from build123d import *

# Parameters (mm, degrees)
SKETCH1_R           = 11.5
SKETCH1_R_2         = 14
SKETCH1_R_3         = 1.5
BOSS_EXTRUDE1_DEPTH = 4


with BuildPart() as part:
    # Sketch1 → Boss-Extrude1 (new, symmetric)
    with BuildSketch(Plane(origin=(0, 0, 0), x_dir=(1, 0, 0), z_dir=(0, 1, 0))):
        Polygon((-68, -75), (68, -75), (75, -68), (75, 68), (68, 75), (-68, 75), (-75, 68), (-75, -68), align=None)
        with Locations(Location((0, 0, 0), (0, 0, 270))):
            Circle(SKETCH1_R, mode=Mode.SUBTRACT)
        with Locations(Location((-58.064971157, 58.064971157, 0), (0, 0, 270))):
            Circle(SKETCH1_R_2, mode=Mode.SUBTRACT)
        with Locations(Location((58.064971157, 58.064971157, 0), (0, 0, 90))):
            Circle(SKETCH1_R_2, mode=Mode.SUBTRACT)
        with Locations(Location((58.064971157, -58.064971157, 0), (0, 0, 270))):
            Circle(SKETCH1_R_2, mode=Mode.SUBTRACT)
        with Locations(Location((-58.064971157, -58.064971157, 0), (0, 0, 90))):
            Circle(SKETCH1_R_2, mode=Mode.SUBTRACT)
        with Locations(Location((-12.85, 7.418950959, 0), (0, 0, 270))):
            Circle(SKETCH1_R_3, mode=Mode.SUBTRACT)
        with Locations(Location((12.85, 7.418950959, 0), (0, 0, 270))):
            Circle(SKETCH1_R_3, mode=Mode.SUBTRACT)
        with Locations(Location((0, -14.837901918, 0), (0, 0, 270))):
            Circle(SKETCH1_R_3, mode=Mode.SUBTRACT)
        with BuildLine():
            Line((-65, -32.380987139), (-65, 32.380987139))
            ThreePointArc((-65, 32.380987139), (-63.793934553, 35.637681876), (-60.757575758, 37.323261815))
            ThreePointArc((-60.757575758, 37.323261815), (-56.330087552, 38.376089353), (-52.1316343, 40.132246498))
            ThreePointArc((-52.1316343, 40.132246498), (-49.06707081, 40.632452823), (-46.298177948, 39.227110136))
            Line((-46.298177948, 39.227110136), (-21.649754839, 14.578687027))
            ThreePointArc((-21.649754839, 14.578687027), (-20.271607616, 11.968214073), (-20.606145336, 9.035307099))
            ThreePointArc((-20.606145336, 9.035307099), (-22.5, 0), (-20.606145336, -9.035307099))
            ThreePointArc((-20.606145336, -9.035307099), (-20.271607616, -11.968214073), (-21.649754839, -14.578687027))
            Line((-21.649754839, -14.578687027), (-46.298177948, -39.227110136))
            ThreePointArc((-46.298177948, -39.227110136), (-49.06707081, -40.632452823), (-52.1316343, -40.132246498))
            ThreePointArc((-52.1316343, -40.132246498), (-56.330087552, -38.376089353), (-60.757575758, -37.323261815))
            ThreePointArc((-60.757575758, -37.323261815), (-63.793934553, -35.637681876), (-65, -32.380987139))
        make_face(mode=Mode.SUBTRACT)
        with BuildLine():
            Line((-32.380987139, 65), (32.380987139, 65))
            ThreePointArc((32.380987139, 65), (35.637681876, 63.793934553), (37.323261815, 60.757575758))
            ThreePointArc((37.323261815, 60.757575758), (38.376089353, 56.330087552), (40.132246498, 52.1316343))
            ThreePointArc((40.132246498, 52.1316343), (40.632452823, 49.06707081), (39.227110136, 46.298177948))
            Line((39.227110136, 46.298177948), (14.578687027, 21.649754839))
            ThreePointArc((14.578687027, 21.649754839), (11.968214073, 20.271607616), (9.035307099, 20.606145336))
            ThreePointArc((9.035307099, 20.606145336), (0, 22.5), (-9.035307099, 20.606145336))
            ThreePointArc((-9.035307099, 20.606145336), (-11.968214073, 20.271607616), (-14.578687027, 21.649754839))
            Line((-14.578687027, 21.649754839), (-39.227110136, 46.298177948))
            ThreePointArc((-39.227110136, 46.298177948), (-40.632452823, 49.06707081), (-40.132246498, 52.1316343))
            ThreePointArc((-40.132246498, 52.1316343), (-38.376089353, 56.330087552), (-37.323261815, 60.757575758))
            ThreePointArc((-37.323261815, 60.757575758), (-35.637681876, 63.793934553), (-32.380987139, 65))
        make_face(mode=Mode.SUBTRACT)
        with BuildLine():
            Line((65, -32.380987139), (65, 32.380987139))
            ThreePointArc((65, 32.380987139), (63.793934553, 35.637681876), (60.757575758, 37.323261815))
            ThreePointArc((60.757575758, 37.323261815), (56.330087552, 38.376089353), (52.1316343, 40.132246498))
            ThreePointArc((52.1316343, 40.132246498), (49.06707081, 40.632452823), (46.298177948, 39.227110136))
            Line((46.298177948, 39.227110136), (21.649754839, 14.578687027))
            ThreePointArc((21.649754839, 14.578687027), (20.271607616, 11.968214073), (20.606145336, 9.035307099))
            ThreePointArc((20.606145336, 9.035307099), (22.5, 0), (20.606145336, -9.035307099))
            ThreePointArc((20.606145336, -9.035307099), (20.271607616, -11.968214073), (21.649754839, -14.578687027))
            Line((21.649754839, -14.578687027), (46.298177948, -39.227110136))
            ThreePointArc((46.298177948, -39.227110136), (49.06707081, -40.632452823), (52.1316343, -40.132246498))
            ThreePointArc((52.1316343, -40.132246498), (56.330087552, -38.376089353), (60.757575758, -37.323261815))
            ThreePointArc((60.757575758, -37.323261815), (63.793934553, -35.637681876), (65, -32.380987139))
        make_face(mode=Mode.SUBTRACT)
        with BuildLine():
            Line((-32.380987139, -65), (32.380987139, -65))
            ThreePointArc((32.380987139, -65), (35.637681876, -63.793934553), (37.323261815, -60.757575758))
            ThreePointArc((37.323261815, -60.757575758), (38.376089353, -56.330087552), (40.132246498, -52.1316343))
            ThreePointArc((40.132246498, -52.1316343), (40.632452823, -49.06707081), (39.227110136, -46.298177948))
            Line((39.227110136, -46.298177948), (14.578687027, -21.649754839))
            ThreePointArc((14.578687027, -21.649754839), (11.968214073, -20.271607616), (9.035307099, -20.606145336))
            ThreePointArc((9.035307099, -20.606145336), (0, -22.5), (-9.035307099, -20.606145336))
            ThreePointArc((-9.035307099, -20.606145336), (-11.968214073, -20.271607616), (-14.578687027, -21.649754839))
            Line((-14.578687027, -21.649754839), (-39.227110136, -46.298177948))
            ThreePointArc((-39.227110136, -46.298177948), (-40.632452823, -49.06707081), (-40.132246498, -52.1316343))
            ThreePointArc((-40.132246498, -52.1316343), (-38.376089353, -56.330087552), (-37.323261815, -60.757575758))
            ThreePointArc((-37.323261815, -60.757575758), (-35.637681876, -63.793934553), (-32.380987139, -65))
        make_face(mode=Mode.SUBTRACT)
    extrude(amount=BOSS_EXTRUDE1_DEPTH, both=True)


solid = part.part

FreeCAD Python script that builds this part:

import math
import FreeCAD as App
import Part
import Sketcher
from FreeCAD import Vector
Q = App.Units.Quantity


def add_polygon(sketch, points):
    """Adds a closed chain of lines whose ends are joined by coincident constraints."""
    first, n = sketch.GeometryCount, len(points)
    for a, b in zip(points, points[1:] + points[:1]):
        sketch.addGeometry(Part.LineSegment(App.Vector(*a, 0), App.Vector(*b, 0)), False)
    for i in range(n):
        sketch.addConstraint(Sketcher.Constraint("Coincident", first + i, 2, first + (i + 1) % n, 1))

doc = App.newDocument("Part")
body = doc.addObject("PartDesign::Body", "Body")

# Sketch on XZ plane
sketch1 = body.newObject("Sketcher::SketchObject", "Sketch")
sketch1.AttachmentSupport = (doc.getObject("XZ_Plane"), [""])
sketch1.MapMode = "FlatFace"
add_polygon(sketch1, [(-68, 75), (68, 75), (75, 68), (75, -68), (68, -75), (-68, -75), (-75, -68), (-75, 68)])  # lines 0-7
sketch1.addGeometry(Part.Circle(Vector(-58.1, 58.1, 0), Vector(0, 0, 1), 14), False)  # 8
sketch1.addGeometry(Part.LineSegment(Vector(32.4, 65, 0), Vector(-32.4, 65, 0)), False)  # 9
sketch1.addGeometry(Part.ArcOfCircle(Part.Circle(Vector(-32.4, 60, 0), Vector(0, 0, 1), 5), math.radians(90), math.radians(171)), False)  # 10
sketch1.addGeometry(Part.ArcOfCircle(Part.Circle(Vector(-65, 65, 0), Vector(0, 0, 1), 28), math.radians(-27.36), math.radians(-8.71)), False)  # 11
sketch1.addGeometry(Part.ArcOfCircle(Part.Circle(Vector(-35.7, 49.8, 0), Vector(0, 0, 1), 5), math.radians(153), math.radians(225)), False)  # 12
sketch1.addGeometry(Part.LineSegment(Vector(-39.2, 46.3, 0), Vector(-14.6, 21.6, 0)), False)  # 13
sketch1.addGeometry(Part.ArcOfCircle(Part.Circle(Vector(-11, 25.2, 0), Vector(0, 0, 1), 5), math.radians(-135), math.radians(-66)), False)  # 14
sketch1.addGeometry(Part.ArcOfCircle(Part.Circle(Vector(0, 0, 0), Vector(0, 0, 1), 22.5), math.radians(66), math.radians(114)), False)  # 15
sketch1.addGeometry(Part.ArcOfCircle(Part.Circle(Vector(11, 25.2, 0), Vector(0, 0, 1), 5), math.radians(-114), math.radians(-45)), False)  # 16
sketch1.addGeometry(Part.LineSegment(Vector(14.6, 21.6, 0), Vector(39.2, 46.3, 0)), False)  # 17
sketch1.addGeometry(Part.ArcOfCircle(Part.Circle(Vector(35.7, 49.8, 0), Vector(0, 0, 1), 5), math.radians(-45), math.radians(27)), False)  # 18
sketch1.addGeometry(Part.ArcOfCircle(Part.Circle(Vector(65, 65, 0), Vector(0, 0, 1), 28), math.radians(-171.29), math.radians(-152.64)), False)  # 19
sketch1.addGeometry(Part.ArcOfCircle(Part.Circle(Vector(32.4, 60, 0), Vector(0, 0, 1), 5), math.radians(9), math.radians(90)), False)  # 20
sketch1.addGeometry(Part.Circle(Vector(58.1, 58.1, 0), Vector(0, 0, 1), 14), False)  # 21
sketch1.addGeometry(Part.Circle(Vector(0, 14.8, 0), Vector(0, 0, 1), 1.5), False)  # 22
sketch1.addGeometry(Part.ArcOfCircle(Part.Circle(Vector(-60, 32.4, 0), Vector(0, 0, 1), 5), math.radians(99), math.radians(180)), False)  # 23
sketch1.addGeometry(Part.LineSegment(Vector(-65, 32.4, 0), Vector(-65, -32.4, 0)), False)  # 24
sketch1.addGeometry(Part.ArcOfCircle(Part.Circle(Vector(-60, -32.4, 0), Vector(0, 0, 1), 5), math.radians(180), math.radians(261)), False)  # 25
sketch1.addGeometry(Part.ArcOfCircle(Part.Circle(Vector(-65, -65, 0), Vector(0, 0, 1), 28), math.radians(62.64), math.radians(81.29)), False)  # 26
sketch1.addGeometry(Part.ArcOfCircle(Part.Circle(Vector(-49.8, -35.7, 0), Vector(0, 0, 1), 5), math.radians(-117), math.radians(-45)), False)  # 27
sketch1.addGeometry(Part.LineSegment(Vector(-46.3, -39.2, 0), Vector(-21.6, -14.6, 0)), False)  # 28
sketch1.addGeometry(Part.ArcOfCircle(Part.Circle(Vector(-25.2, -11, 0), Vector(0, 0, 1), 5), math.radians(-45), math.radians(24)), False)  # 29
sketch1.addGeometry(Part.ArcOfCircle(Part.Circle(Vector(0, 0, 0), Vector(0, 0, 1), 22.5), math.radians(156), math.radians(204)), False)  # 30
sketch1.addGeometry(Part.ArcOfCircle(Part.Circle(Vector(-25.2, 11, 0), Vector(0, 0, 1), 5), math.radians(-24), math.radians(45)), False)  # 31
sketch1.addGeometry(Part.LineSegment(Vector(-21.6, 14.6, 0), Vector(-46.3, 39.2, 0)), False)  # 32
sketch1.addGeometry(Part.ArcOfCircle(Part.Circle(Vector(-49.8, 35.7, 0), Vector(0, 0, 1), 5), math.radians(45), math.radians(117)), False)  # 33
sketch1.addGeometry(Part.ArcOfCircle(Part.Circle(Vector(-65, 65, 0), Vector(0, 0, 1), 28), math.radians(-81.29), math.radians(-62.64)), False)  # 34
sketch1.addGeometry(Part.Circle(Vector(-12.8, -7.4, 0), Vector(0, 0, 1), 1.5), False)  # 35
sketch1.addGeometry(Part.Circle(Vector(-58.1, -58.1, 0), Vector(0, 0, 1), 14), False)  # 36
sketch1.addGeometry(Part.Circle(Vector(0, 0, 0), Vector(0, 0, 1), 11.5), False)  # 37
sketch1.addGeometry(Part.Circle(Vector(12.8, -7.4, 0), Vector(0, 0, 1), 1.5), False)  # 38
sketch1.addGeometry(Part.LineSegment(Vector(65, -32.4, 0), Vector(65, 32.4, 0)), False)  # 39
sketch1.addGeometry(Part.ArcOfCircle(Part.Circle(Vector(60, 32.4, 0), Vector(0, 0, 1), 5), math.radians(0), math.radians(81)), False)  # 40
sketch1.addGeometry(Part.ArcOfCircle(Part.Circle(Vector(65, 65, 0), Vector(0, 0, 1), 28), math.radians(-117.36), math.radians(-98.71)), False)  # 41
sketch1.addGeometry(Part.ArcOfCircle(Part.Circle(Vector(49.8, 35.7, 0), Vector(0, 0, 1), 5), math.radians(63), math.radians(135)), False)  # 42
sketch1.addGeometry(Part.LineSegment(Vector(46.3, 39.2, 0), Vector(21.6, 14.6, 0)), False)  # 43
sketch1.addGeometry(Part.ArcOfCircle(Part.Circle(Vector(25.2, 11, 0), Vector(0, 0, 1), 5), math.radians(135), math.radians(204)), False)  # 44
sketch1.addGeometry(Part.ArcOfCircle(Part.Circle(Vector(0, 0, 0), Vector(0, 0, 1), 22.5), math.radians(-24), math.radians(24)), False)  # 45
sketch1.addGeometry(Part.ArcOfCircle(Part.Circle(Vector(25.2, -11, 0), Vector(0, 0, 1), 5), math.radians(156), math.radians(225)), False)  # 46
sketch1.addGeometry(Part.LineSegment(Vector(21.6, -14.6, 0), Vector(46.3, -39.2, 0)), False)  # 47
sketch1.addGeometry(Part.ArcOfCircle(Part.Circle(Vector(49.8, -35.7, 0), Vector(0, 0, 1), 5), math.radians(-135), math.radians(-63)), False)  # 48
sketch1.addGeometry(Part.ArcOfCircle(Part.Circle(Vector(65, -65, 0), Vector(0, 0, 1), 28), math.radians(98.71), math.radians(117.36)), False)  # 49
sketch1.addGeometry(Part.ArcOfCircle(Part.Circle(Vector(60, -32.4, 0), Vector(0, 0, 1), 5), math.radians(-81), math.radians(0)), False)  # 50
sketch1.addGeometry(Part.ArcOfCircle(Part.Circle(Vector(-32.4, -60, 0), Vector(0, 0, 1), 5), math.radians(-171), math.radians(-90)), False)  # 51
sketch1.addGeometry(Part.LineSegment(Vector(-32.4, -65, 0), Vector(32.4, -65, 0)), False)  # 52
sketch1.addGeometry(Part.ArcOfCircle(Part.Circle(Vector(32.4, -60, 0), Vector(0, 0, 1), 5), math.radians(-90), math.radians(-9)), False)  # 53
sketch1.addGeometry(Part.ArcOfCircle(Part.Circle(Vector(65, -65, 0), Vector(0, 0, 1), 28), math.radians(152.64), math.radians(171.29)), False)  # 54
sketch1.addGeometry(Part.ArcOfCircle(Part.Circle(Vector(35.7, -49.8, 0), Vector(0, 0, 1), 5), math.radians(-27), math.radians(45)), False)  # 55
sketch1.addGeometry(Part.LineSegment(Vector(39.2, -46.3, 0), Vector(14.6, -21.6, 0)), False)  # 56
sketch1.addGeometry(Part.ArcOfCircle(Part.Circle(Vector(11, -25.2, 0), Vector(0, 0, 1), 5), math.radians(45), math.radians(114)), False)  # 57
sketch1.addGeometry(Part.ArcOfCircle(Part.Circle(Vector(0, 0, 0), Vector(0, 0, 1), 22.5), math.radians(-114), math.radians(-66)), False)  # 58
sketch1.addGeometry(Part.ArcOfCircle(Part.Circle(Vector(-11, -25.2, 0), Vector(0, 0, 1), 5), math.radians(66), math.radians(135)), False)  # 59
sketch1.addGeometry(Part.LineSegment(Vector(-14.6, -21.6, 0), Vector(-39.2, -46.3, 0)), False)  # 60
sketch1.addGeometry(Part.ArcOfCircle(Part.Circle(Vector(-35.7, -49.8, 0), Vector(0, 0, 1), 5), math.radians(135), math.radians(207)), False)  # 61
sketch1.addGeometry(Part.ArcOfCircle(Part.Circle(Vector(-65, -65, 0), Vector(0, 0, 1), 28), math.radians(8.71), math.radians(27.36)), False)  # 62
sketch1.addGeometry(Part.Circle(Vector(58.1, -58.1, 0), Vector(0, 0, 1), 14), False)  # 63
sketch1.addConstraint([
    Sketcher.Constraint("Tangent", 9, 2, 10, 1),
    Sketcher.Constraint("Tangent", 10, 2, 11, 2),
    Sketcher.Constraint("Tangent", 11, 1, 12, 1),
    Sketcher.Constraint("Tangent", 12, 2, 13, 1),
    Sketcher.Constraint("Tangent", 13, 2, 14, 1),
    Sketcher.Constraint("Tangent", 14, 2, 15, 2),
    Sketcher.Constraint("Tangent", 15, 1, 16, 1),
    Sketcher.Constraint("Tangent", 16, 2, 17, 1),
    Sketcher.Constraint("Tangent", 17, 2, 18, 1),
    Sketcher.Constraint("Tangent", 18, 2, 19, 2),
    Sketcher.Constraint("Tangent", 19, 1, 20, 1),
    Sketcher.Constraint("Tangent", 20, 2, 9, 1),
    Sketcher.Constraint("Tangent", 23, 2, 24, 1),
    Sketcher.Constraint("Tangent", 24, 2, 25, 1),
    Sketcher.Constraint("Tangent", 25, 2, 26, 2),
    Sketcher.Constraint("Tangent", 26, 1, 27, 1),
    Sketcher.Constraint("Tangent", 27, 2, 28, 1),
    Sketcher.Constraint("Tangent", 28, 2, 29, 1),
    Sketcher.Constraint("Tangent", 29, 2, 30, 2),
    Sketcher.Constraint("Tangent", 30, 1, 31, 1),
    Sketcher.Constraint("Tangent", 31, 2, 32, 1),
    Sketcher.Constraint("Tangent", 32, 2, 33, 1),
    Sketcher.Constraint("Tangent", 33, 2, 34, 2),
    Sketcher.Constraint("Tangent", 34, 1, 23, 1),
    Sketcher.Constraint("Tangent", 39, 2, 40, 1),
    Sketcher.Constraint("Tangent", 40, 2, 41, 2),
    Sketcher.Constraint("Tangent", 41, 1, 42, 1),
    Sketcher.Constraint("Tangent", 42, 2, 43, 1),
    Sketcher.Constraint("Tangent", 43, 2, 44, 1),
    Sketcher.Constraint("Tangent", 44, 2, 45, 2),
    Sketcher.Constraint("Tangent", 45, 1, 46, 1),
    Sketcher.Constraint("Tangent", 46, 2, 47, 1),
    Sketcher.Constraint("Tangent", 47, 2, 48, 1),
    Sketcher.Constraint("Tangent", 48, 2, 49, 2),
    Sketcher.Constraint("Tangent", 49, 1, 50, 1),
    Sketcher.Constraint("Tangent", 50, 2, 39, 1),
    Sketcher.Constraint("Tangent", 51, 2, 52, 1),
    Sketcher.Constraint("Tangent", 52, 2, 53, 1),
    Sketcher.Constraint("Tangent", 53, 2, 54, 2),
    Sketcher.Constraint("Tangent", 54, 1, 55, 1),
    Sketcher.Constraint("Tangent", 55, 2, 56, 1),
    Sketcher.Constraint("Tangent", 56, 2, 57, 1),
    Sketcher.Constraint("Tangent", 57, 2, 58, 2),
    Sketcher.Constraint("Tangent", 58, 1, 59, 1),
    Sketcher.Constraint("Tangent", 59, 2, 60, 1),
    Sketcher.Constraint("Tangent", 60, 2, 61, 1),
    Sketcher.Constraint("Tangent", 61, 2, 62, 2),
    Sketcher.Constraint("Tangent", 62, 1, 51, 1),
    Sketcher.Constraint("Horizontal", 0),
    Sketcher.Constraint("Vertical", 2),
    Sketcher.Constraint("Horizontal", 4),
    Sketcher.Constraint("Vertical", 6),
    Sketcher.Constraint("Horizontal", 9),
    Sketcher.Constraint("Vertical", 24),
    Sketcher.Constraint("Vertical", 39),
    Sketcher.Constraint("Horizontal", 52),
    Sketcher.Constraint("Coincident", 15, 3, -1, 1),
    Sketcher.Constraint("Coincident", 30, 3, -1, 1),
    Sketcher.Constraint("Coincident", 37, 3, -1, 1),
    Sketcher.Constraint("Coincident", 45, 3, -1, 1),
    Sketcher.Constraint("Coincident", 58, 3, -1, 1),
    Sketcher.Constraint("Coincident", 34, 3, 11, 3),
    Sketcher.Constraint("Coincident", 41, 3, 19, 3),
    Sketcher.Constraint("Coincident", 54, 3, 49, 3),
    Sketcher.Constraint("Coincident", 62, 3, 26, 3),
    Sketcher.Constraint("Equal", 10, 12),
    Sketcher.Constraint("Equal", 12, 14),
    Sketcher.Constraint("Equal", 14, 16),
    Sketcher.Constraint("Equal", 16, 18),
    Sketcher.Constraint("Equal", 11, 19),
    Sketcher.Constraint("Equal", 18, 20),
    Sketcher.Constraint("Equal", 8, 21),
    Sketcher.Constraint("Equal", 20, 23),
    Sketcher.Constraint("Equal", 23, 25),
    Sketcher.Constraint("Equal", 19, 26),
    Sketcher.Constraint("Equal", 25, 27),
    Sketcher.Constraint("Equal", 27, 29),
    Sketcher.Constraint("Equal", 15, 30),
    Sketcher.Constraint("Equal", 29, 31),
    Sketcher.Constraint("Equal", 31, 33),
    Sketcher.Constraint("Equal", 26, 34),
    Sketcher.Constraint("Equal", 22, 35),
    Sketcher.Constraint("Equal", 21, 36),
    Sketcher.Constraint("Equal", 35, 38),
    Sketcher.Constraint("Equal", 33, 40),
    Sketcher.Constraint("Equal", 34, 41),
    Sketcher.Constraint("Equal", 40, 42),
    Sketcher.Constraint("Equal", 42, 44),
    Sketcher.Constraint("Equal", 30, 45),
    Sketcher.Constraint("Equal", 44, 46),
    Sketcher.Constraint("Equal", 46, 48),
    Sketcher.Constraint("Equal", 41, 49),
    Sketcher.Constraint("Equal", 48, 50),
    Sketcher.Constraint("Equal", 50, 51),
    Sketcher.Constraint("Equal", 51, 53),
    Sketcher.Constraint("Equal", 49, 54),
    Sketcher.Constraint("Equal", 53, 55),
    Sketcher.Constraint("Equal", 55, 57),
    Sketcher.Constraint("Equal", 45, 58),
    Sketcher.Constraint("Equal", 57, 59),
    Sketcher.Constraint("Equal", 59, 61),
    Sketcher.Constraint("Equal", 54, 62),
    Sketcher.Constraint("Equal", 36, 63),
    Sketcher.Constraint("Symmetric", 19, 3, 26, 3, -1, 1),
    Sketcher.Constraint("Symmetric", 21, 3, 36, 3, -1, 1),
    Sketcher.Constraint("Symmetric", 33, 3, 48, 3, -1, 1),
    Sketcher.Constraint("Symmetric", 23, 3, 50, 3, -1, 1),
    Sketcher.Constraint("Symmetric", 8, 3, 63, 3, -1, 1),
    Sketcher.Constraint("Symmetric", 0, 2, 4, 2, -1, 1),
    Sketcher.Constraint("Symmetric", 1, 2, 5, 2, -1, 1),
    Sketcher.Constraint("Symmetric", 27, 2, 42, 2, -1, 1),
    Sketcher.Constraint("Symmetric", 12, 2, 55, 2, -1, 1),
    Sketcher.Constraint("Symmetric", 16, 2, 59, 2, -1, 1),
    Sketcher.Constraint("Symmetric", 12, 3, 18, 3, -2),
    Sketcher.Constraint("Symmetric", 8, 3, 21, 3, -2),
    Sketcher.Constraint("Symmetric", 35, 3, 38, 3, -2),
    Sketcher.Constraint("Symmetric", 33, 3, 42, 3, -2),
    Sketcher.Constraint("PointOnObject", 22, 3, -2),
    Sketcher.Constraint("Perpendicular", 1, 3),
    Sketcher.Constraint("Perpendicular", 5, 7),
    Sketcher.Constraint("Perpendicular", 7, 13),
    Sketcher.Constraint("Perpendicular", 13, 17),
    Sketcher.Constraint("Parallel", 17, 28),
    Sketcher.Constraint("Perpendicular", 28, 32),
    Sketcher.Constraint("Perpendicular", 43, 47),
    Sketcher.Constraint("Horizontal", 14, 3, 16, 3),
    Sketcher.Constraint("Horizontal", 2, 2, 5, 2),
    Sketcher.Constraint("Horizontal", 1, 2, 6, 2),
    Sketcher.Constraint("Horizontal", 41, 3, 9, 2),
    Sketcher.Constraint("Horizontal", 62, 3, 51, 2),
    Sketcher.Constraint("Vertical", 62, 3, 23, 2),
    Sketcher.Constraint("Equal", 4, 2),
    Sketcher.Constraint("Equal", 52, 24),
    Sketcher.Constraint("Equal", 17, 28),
    Sketcher.Constraint("Diameter", 8, Q("28 mm")),
    Sketcher.Constraint("Diameter", 22, Q("3 mm")),
    Sketcher.Constraint("Diameter", 37, Q("23 mm")),
    Sketcher.Constraint("Radius", 10, Q("5 mm")),
    Sketcher.Constraint("Radius", 11, Q("28 mm")),
    Sketcher.Constraint("Radius", 15, Q("22.5 mm")),
    Sketcher.Constraint("DistanceX", 0, 1, 0, 2, Q("136 mm")),
    Sketcher.Constraint("DistanceY", -1, 1, 10, 3, Q("60 mm")),
    Sketcher.Constraint("DistanceY", -1, 1, 0, 2, Q("75 mm")),
    Sketcher.Constraint("DistanceX", 35, 3, -1, 1, Q("12.85 mm")),
    Sketcher.Constraint("DistanceY", -1, 1, 22, 3, Q("14.837902 mm")),
    Sketcher.Constraint("DistanceX", 8, 3, -1, 1, Q("58.064971 mm")),
    Sketcher.Constraint("DistanceY", -1, 1, 8, 3, Q("58.064971 mm")),
    Sketcher.Constraint("DistanceY", -1, 1, 12, 3, Q("49.833712 mm")),
    Sketcher.Constraint("DistanceY", 35, 3, -1, 1, Q("7.418951 mm")),
])
pad1 = body.newObject("PartDesign::Pad", "Pad")
pad1.Profile = sketch1
pad1.Length = 8
pad1.Midplane = True

doc.recompute()
